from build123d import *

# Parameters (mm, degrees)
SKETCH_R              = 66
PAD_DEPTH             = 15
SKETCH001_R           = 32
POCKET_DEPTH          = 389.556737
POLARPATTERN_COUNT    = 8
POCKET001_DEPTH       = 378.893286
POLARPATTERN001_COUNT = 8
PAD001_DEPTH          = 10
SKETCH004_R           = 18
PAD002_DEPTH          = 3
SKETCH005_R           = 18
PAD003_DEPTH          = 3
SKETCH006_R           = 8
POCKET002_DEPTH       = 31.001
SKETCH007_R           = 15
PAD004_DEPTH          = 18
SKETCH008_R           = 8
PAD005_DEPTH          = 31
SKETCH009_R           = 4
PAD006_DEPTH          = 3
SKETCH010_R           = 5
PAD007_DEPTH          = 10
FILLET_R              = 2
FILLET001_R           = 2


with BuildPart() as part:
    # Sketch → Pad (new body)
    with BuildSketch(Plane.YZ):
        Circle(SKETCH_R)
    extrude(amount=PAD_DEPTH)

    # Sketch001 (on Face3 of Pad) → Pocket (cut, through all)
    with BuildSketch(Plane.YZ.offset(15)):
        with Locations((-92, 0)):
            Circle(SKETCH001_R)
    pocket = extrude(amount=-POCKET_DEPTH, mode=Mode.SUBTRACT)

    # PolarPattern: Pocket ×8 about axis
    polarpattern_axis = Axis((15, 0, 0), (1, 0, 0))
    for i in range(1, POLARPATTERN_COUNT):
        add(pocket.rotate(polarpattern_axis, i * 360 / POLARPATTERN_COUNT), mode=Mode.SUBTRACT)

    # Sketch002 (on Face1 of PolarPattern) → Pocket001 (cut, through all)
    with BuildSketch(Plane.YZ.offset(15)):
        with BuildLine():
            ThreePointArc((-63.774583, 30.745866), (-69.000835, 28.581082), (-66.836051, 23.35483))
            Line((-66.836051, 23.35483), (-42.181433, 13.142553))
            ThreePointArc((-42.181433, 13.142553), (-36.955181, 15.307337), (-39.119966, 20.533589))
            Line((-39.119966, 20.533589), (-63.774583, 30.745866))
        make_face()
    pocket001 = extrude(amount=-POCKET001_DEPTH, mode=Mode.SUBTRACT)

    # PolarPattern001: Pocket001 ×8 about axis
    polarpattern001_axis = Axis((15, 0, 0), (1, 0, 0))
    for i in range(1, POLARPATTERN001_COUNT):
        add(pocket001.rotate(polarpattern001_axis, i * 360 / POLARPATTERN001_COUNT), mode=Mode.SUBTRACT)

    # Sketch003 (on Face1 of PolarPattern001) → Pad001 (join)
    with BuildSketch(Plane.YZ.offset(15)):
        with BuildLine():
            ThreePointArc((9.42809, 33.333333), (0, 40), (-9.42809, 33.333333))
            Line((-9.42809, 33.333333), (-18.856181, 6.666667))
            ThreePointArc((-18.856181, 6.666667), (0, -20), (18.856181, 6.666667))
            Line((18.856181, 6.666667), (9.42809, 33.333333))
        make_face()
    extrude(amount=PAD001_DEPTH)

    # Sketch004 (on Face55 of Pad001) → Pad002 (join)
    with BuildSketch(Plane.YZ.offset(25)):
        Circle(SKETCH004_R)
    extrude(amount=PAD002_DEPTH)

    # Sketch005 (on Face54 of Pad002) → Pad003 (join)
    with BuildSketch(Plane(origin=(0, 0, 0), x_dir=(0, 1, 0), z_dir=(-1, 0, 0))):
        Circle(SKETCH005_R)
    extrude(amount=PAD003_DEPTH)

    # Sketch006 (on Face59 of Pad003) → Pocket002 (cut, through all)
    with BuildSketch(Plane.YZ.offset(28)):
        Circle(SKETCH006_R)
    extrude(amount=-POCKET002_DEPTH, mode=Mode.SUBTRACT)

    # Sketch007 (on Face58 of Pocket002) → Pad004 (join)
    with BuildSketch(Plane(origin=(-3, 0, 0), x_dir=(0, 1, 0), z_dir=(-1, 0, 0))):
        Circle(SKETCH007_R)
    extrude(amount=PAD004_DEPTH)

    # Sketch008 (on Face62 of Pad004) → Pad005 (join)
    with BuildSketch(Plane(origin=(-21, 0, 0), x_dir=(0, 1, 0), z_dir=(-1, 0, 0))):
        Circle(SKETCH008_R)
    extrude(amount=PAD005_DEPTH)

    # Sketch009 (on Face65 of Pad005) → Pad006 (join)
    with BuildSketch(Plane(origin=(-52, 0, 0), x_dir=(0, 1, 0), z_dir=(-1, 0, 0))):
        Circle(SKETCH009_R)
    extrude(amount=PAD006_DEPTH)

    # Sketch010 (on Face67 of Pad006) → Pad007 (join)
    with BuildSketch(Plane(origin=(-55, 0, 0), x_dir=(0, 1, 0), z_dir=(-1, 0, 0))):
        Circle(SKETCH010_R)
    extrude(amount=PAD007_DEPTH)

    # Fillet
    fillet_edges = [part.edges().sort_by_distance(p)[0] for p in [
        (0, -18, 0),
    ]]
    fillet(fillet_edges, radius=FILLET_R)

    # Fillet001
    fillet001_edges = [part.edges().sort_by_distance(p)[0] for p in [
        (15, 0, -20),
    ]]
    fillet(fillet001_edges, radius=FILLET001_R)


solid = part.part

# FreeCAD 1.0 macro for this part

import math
import FreeCAD as App
import Part
import Sketcher

V = App.Vector
Q = App.Units.Quantity


def edges_at(feature, points):
    """Names of the edges that pass closest to the given points."""
    edges = feature.Shape.Edges
    near = lambda p: min(range(len(edges)), key=lambda i: edges[i].distToShape(Part.Vertex(*p))[0])
    return sorted({f"Edge{near(p) + 1}" for p in points})

doc = App.newDocument("Part")
body = doc.addObject("PartDesign::Body", "Body")

# Sketch on YZ plane
sketch1 = body.newObject("Sketcher::SketchObject", "Sketch")
sketch1.AttachmentSupport = (doc.getObject("YZ_Plane"), [""])
sketch1.MapMode = "FlatFace"
sketch1.addGeometry(Part.Circle(V(0, 0, 0), V(0, 0, 1), 66), False)
sketch1.addConstraint(Sketcher.Constraint("Coincident", 0, 3, -1, 1))
sketch1.addConstraint(Sketcher.Constraint("Diameter", 0, Q("132 mm")))
pad1 = body.newObject("PartDesign::Pad", "Pad")
pad1.Profile = sketch1
pad1.Length = 15

# Sketch on YZ plane
sketch2 = body.newObject("Sketcher::SketchObject", "Sketch001")
sketch2.AttachmentSupport = (doc.getObject("YZ_Plane"), [""])
sketch2.MapMode = "FlatFace"
sketch2.AttachmentOffset = App.Placement(V(0, 0, 15), App.Rotation())
sketch2.addGeometry(Part.Circle(V(-92, 0, 0), V(0, 0, 1), 32), False)
sketch2.addConstraint(Sketcher.Constraint("PointOnObject", 0, 3, -1))
sketch2.addConstraint(Sketcher.Constraint("Diameter", 0, Q("64 mm")))
sketch2.addConstraint(Sketcher.Constraint("DistanceX", 0, 3, -1, 1, Q("92 mm")))
pocket1 = body.newObject("PartDesign::Pocket", "Pocket")
pocket1.Profile = sketch2
pocket1.Type = "ThroughAll"
doc.recompute()

polarpattern = body.newObject("PartDesign::PolarPattern", "PolarPattern")
polarpattern.Originals = [pocket1]
polarpattern.Axis = (doc.getObject("X_Axis"), [""])
polarpattern.Angle = 360
polarpattern.Occurrences = 8
body.Tip = polarpattern

# Sketch on YZ plane
sketch3 = body.newObject("Sketcher::SketchObject", "Sketch002")
sketch3.AttachmentSupport = (doc.getObject("YZ_Plane"), [""])
sketch3.MapMode = "FlatFace"
sketch3.AttachmentOffset = App.Placement(V(0, 0, 15), App.Rotation())
sketch3.addGeometry(Part.ArcOfCircle(Part.Circle(V(-65.3, 27.1, 0), V(0, 0, 1), 4), math.radians(67), math.radians(247)), False)
sketch3.addGeometry(Part.LineSegment(V(-66.8, 23.4, 0), V(-42.2, 13.1, 0)), False)
sketch3.addGeometry(Part.ArcOfCircle(Part.Circle(V(-40.7, 16.8, 0), V(0, 0, 1), 4), math.radians(-113), math.radians(68)), False)
sketch3.addGeometry(Part.LineSegment(V(-39.1, 20.5, 0), V(-63.8, 30.7, 0)), False)
sketch3.addConstraint(Sketcher.Constraint("Tangent", 0, 2, 1, 1))
sketch3.addConstraint(Sketcher.Constraint("Tangent", 1, 2, 2, 1))
sketch3.addConstraint(Sketcher.Constraint("Tangent", 2, 2, 3, 1))
sketch3.addConstraint(Sketcher.Constraint("Tangent", 3, 2, 0, 1))
sketch3.addConstraint(Sketcher.Constraint("Equal", 0, 2))
sketch3.addConstraint(Sketcher.Constraint("Radius", 0, Q("4 mm")))
sketch3.addConstraint(Sketcher.Constraint("Angle", 1, Q("-22.5 deg")))
sketch3.addConstraint(Sketcher.Constraint("DistanceX", 2, 3, -1, 1, Q("40.650699 mm")))
sketch3.addConstraint(Sketcher.Constraint("DistanceY", -1, 1, 2, 3, Q("16.838071 mm")))
sketch3.addConstraint(Sketcher.Constraint("DistanceX", 0, 2, -1, 1, Q("66.836051 mm")))
pocket2 = body.newObject("PartDesign::Pocket", "Pocket001")
pocket2.Profile = sketch3
pocket2.Type = "ThroughAll"
doc.recompute()

polarpattern2 = body.newObject("PartDesign::PolarPattern", "PolarPattern001")
polarpattern2.Originals = [pocket2]
polarpattern2.Axis = (doc.getObject("X_Axis"), [""])
polarpattern2.Angle = 360
polarpattern2.Occurrences = 8
body.Tip = polarpattern2

# Sketch on YZ plane
sketch4 = body.newObject("Sketcher::SketchObject", "Sketch003")
sketch4.AttachmentSupport = (doc.getObject("YZ_Plane"), [""])
sketch4.MapMode = "FlatFace"
sketch4.AttachmentOffset = App.Placement(V(0, 0, 15), App.Rotation())
sketch4.addGeometry(Part.ArcOfCircle(Part.Circle(V(0, 30, 0), V(0, 0, 1), 10), math.radians(19), math.radians(161)), False)
sketch4.addGeometry(Part.LineSegment(V(-9, 33, 0), V(-19, 7, 0)), False)
sketch4.addGeometry(Part.ArcOfCircle(Part.Circle(V(0, 0, 0), V(0, 0, 1), 20), math.radians(161), math.radians(379)), False)
sketch4.addGeometry(Part.LineSegment(V(19, 7, 0), V(9, 33, 0)), False)
sketch4.addConstraint(Sketcher.Constraint("Tangent", 0, 2, 1, 1))
sketch4.addConstraint(Sketcher.Constraint("Tangent", 1, 2, 2, 1))
sketch4.addConstraint(Sketcher.Constraint("Tangent", 2, 2, 3, 1))
sketch4.addConstraint(Sketcher.Constraint("Tangent", 3, 2, 0, 1))
sketch4.addConstraint(Sketcher.Constraint("Coincident", 2, 3, -1, 1))
sketch4.addConstraint(Sketcher.Constraint("PointOnObject", 0, 3, -2))
sketch4.addConstraint(Sketcher.Constraint("Radius", 0, Q("9.999999 mm")))
sketch4.addConstraint(Sketcher.Constraint("Radius", 2, Q("20 mm")))
sketch4.addConstraint(Sketcher.Constraint("DistanceY", -1, 1, 0, 3, Q("30.000001 mm")))
pad2 = body.newObject("PartDesign::Pad", "Pad001")
pad2.Profile = sketch4
pad2.Length = 10

# Sketch on YZ plane
sketch5 = body.newObject("Sketcher::SketchObject", "Sketch004")
sketch5.AttachmentSupport = (doc.getObject("YZ_Plane"), [""])
sketch5.MapMode = "FlatFace"
sketch5.AttachmentOffset = App.Placement(V(0, 0, 25), App.Rotation())
sketch5.addGeometry(Part.Circle(V(0, 0, 0), V(0, 0, 1), 18), False)
sketch5.addConstraint(Sketcher.Constraint("Coincident", 0, 3, -1, 1))
sketch5.addConstraint(Sketcher.Constraint("Diameter", 0, Q("36 mm")))
pad3 = body.newObject("PartDesign::Pad", "Pad002")
pad3.Profile = sketch5
pad3.Length = 3

# Sketch on YZ plane
sketch6 = body.newObject("Sketcher::SketchObject", "Sketch005")
sketch6.AttachmentSupport = (doc.getObject("YZ_Plane"), [""])
sketch6.MapMode = "FlatFace"
sketch6.addGeometry(Part.Circle(V(0, 0, 0), V(0, 0, 1), 18), False)
sketch6.addConstraint(Sketcher.Constraint("Coincident", 0, 3, -1, 1))
sketch6.addConstraint(Sketcher.Constraint("Diameter", 0, Q("36 mm")))
pad4 = body.newObject("PartDesign::Pad", "Pad003")
pad4.Profile = sketch6
pad4.Length = 3
pad4.Reversed = True

# Sketch on YZ plane
sketch7 = body.newObject("Sketcher::SketchObject", "Sketch006")
sketch7.AttachmentSupport = (doc.getObject("YZ_Plane"), [""])
sketch7.MapMode = "FlatFace"
sketch7.AttachmentOffset = App.Placement(V(0, 0, 28), App.Rotation())
sketch7.addGeometry(Part.Circle(V(0, 0, 0), V(0, 0, 1), 8), False)
sketch7.addConstraint(Sketcher.Constraint("Coincident", 0, 3, -1, 1))
sketch7.addConstraint(Sketcher.Constraint("Diameter", 0, Q("16 mm")))
pocket3 = body.newObject("PartDesign::Pocket", "Pocket002")
pocket3.Profile = sketch7
pocket3.Type = "ThroughAll"

# Sketch on YZ plane
sketch8 = body.newObject("Sketcher::SketchObject", "Sketch007")
sketch8.AttachmentSupport = (doc.getObject("YZ_Plane"), [""])
sketch8.MapMode = "FlatFace"
sketch8.AttachmentOffset = App.Placement(V(0, 0, -3), App.Rotation())
sketch8.addGeometry(Part.Circle(V(0, 0, 0), V(0, 0, 1), 15), False)
sketch8.addConstraint(Sketcher.Constraint("Coincident", 0, 3, -1, 1))
sketch8.addConstraint(Sketcher.Constraint("Diameter", 0, Q("30 mm")))
pad5 = body.newObject("PartDesign::Pad", "Pad004")
pad5.Profile = sketch8
pad5.Length = 18
pad5.Reversed = True

# Sketch on YZ plane
sketch9 = body.newObject("Sketcher::SketchObject", "Sketch008")
sketch9.AttachmentSupport = (doc.getObject("YZ_Plane"), [""])
sketch9.MapMode = "FlatFace"
sketch9.AttachmentOffset = App.Placement(V(0, 0, -21), App.Rotation())
sketch9.addGeometry(Part.Circle(V(0, 0, 0), V(0, 0, 1), 8), False)
sketch9.addConstraint(Sketcher.Constraint("Coincident", 0, 3, -1, 1))
sketch9.addConstraint(Sketcher.Constraint("Diameter", 0, Q("16 mm")))
pad6 = body.newObject("PartDesign::Pad", "Pad005")
pad6.Profile = sketch9
pad6.Length = 31
pad6.Reversed = True

# Sketch on YZ plane
sketch10 = body.newObject("Sketcher::SketchObject", "Sketch009")
sketch10.AttachmentSupport = (doc.getObject("YZ_Plane"), [""])
sketch10.MapMode = "FlatFace"
sketch10.AttachmentOffset = App.Placement(V(0, 0, -52), App.Rotation())
sketch10.addGeometry(Part.Circle(V(0, 0, 0), V(0, 0, 1), 4), False)
sketch10.addConstraint(Sketcher.Constraint("Coincident", 0, 3, -1, 1))
sketch10.addConstraint(Sketcher.Constraint("Diameter", 0, Q("8 mm")))
pad7 = body.newObject("PartDesign::Pad", "Pad006")
pad7.Profile = sketch10
pad7.Length = 3
pad7.Reversed = True

# Sketch on YZ plane
sketch11 = body.newObject("Sketcher::SketchObject", "Sketch010")
sketch11.AttachmentSupport = (doc.getObject("YZ_Plane"), [""])
sketch11.MapMode = "FlatFace"
sketch11.AttachmentOffset = App.Placement(V(0, 0, -55), App.Rotation())
sketch11.addGeometry(Part.Circle(V(0, 0, 0), V(0, 0, 1), 5), False)
sketch11.addConstraint(Sketcher.Constraint("Coincident", 0, 3, -1, 1))
sketch11.addConstraint(Sketcher.Constraint("Diameter", 0, Q("10 mm")))
pad8 = body.newObject("PartDesign::Pad", "Pad007")
pad8.Profile = sketch11
pad8.Length = 10
pad8.Reversed = True
doc.recompute()

fillet = body.newObject("PartDesign::Fillet", "Fillet")
fillet.Base = (pad8, edges_at(pad8, [(0, -18, 0)]))
fillet.Radius = 2
doc.recompute()

fillet2 = body.newObject("PartDesign::Fillet", "Fillet001")
fillet2.Base = (fillet, edges_at(fillet, [(15, 0, -20)]))
fillet2.Radius = 2

doc.recompute()
